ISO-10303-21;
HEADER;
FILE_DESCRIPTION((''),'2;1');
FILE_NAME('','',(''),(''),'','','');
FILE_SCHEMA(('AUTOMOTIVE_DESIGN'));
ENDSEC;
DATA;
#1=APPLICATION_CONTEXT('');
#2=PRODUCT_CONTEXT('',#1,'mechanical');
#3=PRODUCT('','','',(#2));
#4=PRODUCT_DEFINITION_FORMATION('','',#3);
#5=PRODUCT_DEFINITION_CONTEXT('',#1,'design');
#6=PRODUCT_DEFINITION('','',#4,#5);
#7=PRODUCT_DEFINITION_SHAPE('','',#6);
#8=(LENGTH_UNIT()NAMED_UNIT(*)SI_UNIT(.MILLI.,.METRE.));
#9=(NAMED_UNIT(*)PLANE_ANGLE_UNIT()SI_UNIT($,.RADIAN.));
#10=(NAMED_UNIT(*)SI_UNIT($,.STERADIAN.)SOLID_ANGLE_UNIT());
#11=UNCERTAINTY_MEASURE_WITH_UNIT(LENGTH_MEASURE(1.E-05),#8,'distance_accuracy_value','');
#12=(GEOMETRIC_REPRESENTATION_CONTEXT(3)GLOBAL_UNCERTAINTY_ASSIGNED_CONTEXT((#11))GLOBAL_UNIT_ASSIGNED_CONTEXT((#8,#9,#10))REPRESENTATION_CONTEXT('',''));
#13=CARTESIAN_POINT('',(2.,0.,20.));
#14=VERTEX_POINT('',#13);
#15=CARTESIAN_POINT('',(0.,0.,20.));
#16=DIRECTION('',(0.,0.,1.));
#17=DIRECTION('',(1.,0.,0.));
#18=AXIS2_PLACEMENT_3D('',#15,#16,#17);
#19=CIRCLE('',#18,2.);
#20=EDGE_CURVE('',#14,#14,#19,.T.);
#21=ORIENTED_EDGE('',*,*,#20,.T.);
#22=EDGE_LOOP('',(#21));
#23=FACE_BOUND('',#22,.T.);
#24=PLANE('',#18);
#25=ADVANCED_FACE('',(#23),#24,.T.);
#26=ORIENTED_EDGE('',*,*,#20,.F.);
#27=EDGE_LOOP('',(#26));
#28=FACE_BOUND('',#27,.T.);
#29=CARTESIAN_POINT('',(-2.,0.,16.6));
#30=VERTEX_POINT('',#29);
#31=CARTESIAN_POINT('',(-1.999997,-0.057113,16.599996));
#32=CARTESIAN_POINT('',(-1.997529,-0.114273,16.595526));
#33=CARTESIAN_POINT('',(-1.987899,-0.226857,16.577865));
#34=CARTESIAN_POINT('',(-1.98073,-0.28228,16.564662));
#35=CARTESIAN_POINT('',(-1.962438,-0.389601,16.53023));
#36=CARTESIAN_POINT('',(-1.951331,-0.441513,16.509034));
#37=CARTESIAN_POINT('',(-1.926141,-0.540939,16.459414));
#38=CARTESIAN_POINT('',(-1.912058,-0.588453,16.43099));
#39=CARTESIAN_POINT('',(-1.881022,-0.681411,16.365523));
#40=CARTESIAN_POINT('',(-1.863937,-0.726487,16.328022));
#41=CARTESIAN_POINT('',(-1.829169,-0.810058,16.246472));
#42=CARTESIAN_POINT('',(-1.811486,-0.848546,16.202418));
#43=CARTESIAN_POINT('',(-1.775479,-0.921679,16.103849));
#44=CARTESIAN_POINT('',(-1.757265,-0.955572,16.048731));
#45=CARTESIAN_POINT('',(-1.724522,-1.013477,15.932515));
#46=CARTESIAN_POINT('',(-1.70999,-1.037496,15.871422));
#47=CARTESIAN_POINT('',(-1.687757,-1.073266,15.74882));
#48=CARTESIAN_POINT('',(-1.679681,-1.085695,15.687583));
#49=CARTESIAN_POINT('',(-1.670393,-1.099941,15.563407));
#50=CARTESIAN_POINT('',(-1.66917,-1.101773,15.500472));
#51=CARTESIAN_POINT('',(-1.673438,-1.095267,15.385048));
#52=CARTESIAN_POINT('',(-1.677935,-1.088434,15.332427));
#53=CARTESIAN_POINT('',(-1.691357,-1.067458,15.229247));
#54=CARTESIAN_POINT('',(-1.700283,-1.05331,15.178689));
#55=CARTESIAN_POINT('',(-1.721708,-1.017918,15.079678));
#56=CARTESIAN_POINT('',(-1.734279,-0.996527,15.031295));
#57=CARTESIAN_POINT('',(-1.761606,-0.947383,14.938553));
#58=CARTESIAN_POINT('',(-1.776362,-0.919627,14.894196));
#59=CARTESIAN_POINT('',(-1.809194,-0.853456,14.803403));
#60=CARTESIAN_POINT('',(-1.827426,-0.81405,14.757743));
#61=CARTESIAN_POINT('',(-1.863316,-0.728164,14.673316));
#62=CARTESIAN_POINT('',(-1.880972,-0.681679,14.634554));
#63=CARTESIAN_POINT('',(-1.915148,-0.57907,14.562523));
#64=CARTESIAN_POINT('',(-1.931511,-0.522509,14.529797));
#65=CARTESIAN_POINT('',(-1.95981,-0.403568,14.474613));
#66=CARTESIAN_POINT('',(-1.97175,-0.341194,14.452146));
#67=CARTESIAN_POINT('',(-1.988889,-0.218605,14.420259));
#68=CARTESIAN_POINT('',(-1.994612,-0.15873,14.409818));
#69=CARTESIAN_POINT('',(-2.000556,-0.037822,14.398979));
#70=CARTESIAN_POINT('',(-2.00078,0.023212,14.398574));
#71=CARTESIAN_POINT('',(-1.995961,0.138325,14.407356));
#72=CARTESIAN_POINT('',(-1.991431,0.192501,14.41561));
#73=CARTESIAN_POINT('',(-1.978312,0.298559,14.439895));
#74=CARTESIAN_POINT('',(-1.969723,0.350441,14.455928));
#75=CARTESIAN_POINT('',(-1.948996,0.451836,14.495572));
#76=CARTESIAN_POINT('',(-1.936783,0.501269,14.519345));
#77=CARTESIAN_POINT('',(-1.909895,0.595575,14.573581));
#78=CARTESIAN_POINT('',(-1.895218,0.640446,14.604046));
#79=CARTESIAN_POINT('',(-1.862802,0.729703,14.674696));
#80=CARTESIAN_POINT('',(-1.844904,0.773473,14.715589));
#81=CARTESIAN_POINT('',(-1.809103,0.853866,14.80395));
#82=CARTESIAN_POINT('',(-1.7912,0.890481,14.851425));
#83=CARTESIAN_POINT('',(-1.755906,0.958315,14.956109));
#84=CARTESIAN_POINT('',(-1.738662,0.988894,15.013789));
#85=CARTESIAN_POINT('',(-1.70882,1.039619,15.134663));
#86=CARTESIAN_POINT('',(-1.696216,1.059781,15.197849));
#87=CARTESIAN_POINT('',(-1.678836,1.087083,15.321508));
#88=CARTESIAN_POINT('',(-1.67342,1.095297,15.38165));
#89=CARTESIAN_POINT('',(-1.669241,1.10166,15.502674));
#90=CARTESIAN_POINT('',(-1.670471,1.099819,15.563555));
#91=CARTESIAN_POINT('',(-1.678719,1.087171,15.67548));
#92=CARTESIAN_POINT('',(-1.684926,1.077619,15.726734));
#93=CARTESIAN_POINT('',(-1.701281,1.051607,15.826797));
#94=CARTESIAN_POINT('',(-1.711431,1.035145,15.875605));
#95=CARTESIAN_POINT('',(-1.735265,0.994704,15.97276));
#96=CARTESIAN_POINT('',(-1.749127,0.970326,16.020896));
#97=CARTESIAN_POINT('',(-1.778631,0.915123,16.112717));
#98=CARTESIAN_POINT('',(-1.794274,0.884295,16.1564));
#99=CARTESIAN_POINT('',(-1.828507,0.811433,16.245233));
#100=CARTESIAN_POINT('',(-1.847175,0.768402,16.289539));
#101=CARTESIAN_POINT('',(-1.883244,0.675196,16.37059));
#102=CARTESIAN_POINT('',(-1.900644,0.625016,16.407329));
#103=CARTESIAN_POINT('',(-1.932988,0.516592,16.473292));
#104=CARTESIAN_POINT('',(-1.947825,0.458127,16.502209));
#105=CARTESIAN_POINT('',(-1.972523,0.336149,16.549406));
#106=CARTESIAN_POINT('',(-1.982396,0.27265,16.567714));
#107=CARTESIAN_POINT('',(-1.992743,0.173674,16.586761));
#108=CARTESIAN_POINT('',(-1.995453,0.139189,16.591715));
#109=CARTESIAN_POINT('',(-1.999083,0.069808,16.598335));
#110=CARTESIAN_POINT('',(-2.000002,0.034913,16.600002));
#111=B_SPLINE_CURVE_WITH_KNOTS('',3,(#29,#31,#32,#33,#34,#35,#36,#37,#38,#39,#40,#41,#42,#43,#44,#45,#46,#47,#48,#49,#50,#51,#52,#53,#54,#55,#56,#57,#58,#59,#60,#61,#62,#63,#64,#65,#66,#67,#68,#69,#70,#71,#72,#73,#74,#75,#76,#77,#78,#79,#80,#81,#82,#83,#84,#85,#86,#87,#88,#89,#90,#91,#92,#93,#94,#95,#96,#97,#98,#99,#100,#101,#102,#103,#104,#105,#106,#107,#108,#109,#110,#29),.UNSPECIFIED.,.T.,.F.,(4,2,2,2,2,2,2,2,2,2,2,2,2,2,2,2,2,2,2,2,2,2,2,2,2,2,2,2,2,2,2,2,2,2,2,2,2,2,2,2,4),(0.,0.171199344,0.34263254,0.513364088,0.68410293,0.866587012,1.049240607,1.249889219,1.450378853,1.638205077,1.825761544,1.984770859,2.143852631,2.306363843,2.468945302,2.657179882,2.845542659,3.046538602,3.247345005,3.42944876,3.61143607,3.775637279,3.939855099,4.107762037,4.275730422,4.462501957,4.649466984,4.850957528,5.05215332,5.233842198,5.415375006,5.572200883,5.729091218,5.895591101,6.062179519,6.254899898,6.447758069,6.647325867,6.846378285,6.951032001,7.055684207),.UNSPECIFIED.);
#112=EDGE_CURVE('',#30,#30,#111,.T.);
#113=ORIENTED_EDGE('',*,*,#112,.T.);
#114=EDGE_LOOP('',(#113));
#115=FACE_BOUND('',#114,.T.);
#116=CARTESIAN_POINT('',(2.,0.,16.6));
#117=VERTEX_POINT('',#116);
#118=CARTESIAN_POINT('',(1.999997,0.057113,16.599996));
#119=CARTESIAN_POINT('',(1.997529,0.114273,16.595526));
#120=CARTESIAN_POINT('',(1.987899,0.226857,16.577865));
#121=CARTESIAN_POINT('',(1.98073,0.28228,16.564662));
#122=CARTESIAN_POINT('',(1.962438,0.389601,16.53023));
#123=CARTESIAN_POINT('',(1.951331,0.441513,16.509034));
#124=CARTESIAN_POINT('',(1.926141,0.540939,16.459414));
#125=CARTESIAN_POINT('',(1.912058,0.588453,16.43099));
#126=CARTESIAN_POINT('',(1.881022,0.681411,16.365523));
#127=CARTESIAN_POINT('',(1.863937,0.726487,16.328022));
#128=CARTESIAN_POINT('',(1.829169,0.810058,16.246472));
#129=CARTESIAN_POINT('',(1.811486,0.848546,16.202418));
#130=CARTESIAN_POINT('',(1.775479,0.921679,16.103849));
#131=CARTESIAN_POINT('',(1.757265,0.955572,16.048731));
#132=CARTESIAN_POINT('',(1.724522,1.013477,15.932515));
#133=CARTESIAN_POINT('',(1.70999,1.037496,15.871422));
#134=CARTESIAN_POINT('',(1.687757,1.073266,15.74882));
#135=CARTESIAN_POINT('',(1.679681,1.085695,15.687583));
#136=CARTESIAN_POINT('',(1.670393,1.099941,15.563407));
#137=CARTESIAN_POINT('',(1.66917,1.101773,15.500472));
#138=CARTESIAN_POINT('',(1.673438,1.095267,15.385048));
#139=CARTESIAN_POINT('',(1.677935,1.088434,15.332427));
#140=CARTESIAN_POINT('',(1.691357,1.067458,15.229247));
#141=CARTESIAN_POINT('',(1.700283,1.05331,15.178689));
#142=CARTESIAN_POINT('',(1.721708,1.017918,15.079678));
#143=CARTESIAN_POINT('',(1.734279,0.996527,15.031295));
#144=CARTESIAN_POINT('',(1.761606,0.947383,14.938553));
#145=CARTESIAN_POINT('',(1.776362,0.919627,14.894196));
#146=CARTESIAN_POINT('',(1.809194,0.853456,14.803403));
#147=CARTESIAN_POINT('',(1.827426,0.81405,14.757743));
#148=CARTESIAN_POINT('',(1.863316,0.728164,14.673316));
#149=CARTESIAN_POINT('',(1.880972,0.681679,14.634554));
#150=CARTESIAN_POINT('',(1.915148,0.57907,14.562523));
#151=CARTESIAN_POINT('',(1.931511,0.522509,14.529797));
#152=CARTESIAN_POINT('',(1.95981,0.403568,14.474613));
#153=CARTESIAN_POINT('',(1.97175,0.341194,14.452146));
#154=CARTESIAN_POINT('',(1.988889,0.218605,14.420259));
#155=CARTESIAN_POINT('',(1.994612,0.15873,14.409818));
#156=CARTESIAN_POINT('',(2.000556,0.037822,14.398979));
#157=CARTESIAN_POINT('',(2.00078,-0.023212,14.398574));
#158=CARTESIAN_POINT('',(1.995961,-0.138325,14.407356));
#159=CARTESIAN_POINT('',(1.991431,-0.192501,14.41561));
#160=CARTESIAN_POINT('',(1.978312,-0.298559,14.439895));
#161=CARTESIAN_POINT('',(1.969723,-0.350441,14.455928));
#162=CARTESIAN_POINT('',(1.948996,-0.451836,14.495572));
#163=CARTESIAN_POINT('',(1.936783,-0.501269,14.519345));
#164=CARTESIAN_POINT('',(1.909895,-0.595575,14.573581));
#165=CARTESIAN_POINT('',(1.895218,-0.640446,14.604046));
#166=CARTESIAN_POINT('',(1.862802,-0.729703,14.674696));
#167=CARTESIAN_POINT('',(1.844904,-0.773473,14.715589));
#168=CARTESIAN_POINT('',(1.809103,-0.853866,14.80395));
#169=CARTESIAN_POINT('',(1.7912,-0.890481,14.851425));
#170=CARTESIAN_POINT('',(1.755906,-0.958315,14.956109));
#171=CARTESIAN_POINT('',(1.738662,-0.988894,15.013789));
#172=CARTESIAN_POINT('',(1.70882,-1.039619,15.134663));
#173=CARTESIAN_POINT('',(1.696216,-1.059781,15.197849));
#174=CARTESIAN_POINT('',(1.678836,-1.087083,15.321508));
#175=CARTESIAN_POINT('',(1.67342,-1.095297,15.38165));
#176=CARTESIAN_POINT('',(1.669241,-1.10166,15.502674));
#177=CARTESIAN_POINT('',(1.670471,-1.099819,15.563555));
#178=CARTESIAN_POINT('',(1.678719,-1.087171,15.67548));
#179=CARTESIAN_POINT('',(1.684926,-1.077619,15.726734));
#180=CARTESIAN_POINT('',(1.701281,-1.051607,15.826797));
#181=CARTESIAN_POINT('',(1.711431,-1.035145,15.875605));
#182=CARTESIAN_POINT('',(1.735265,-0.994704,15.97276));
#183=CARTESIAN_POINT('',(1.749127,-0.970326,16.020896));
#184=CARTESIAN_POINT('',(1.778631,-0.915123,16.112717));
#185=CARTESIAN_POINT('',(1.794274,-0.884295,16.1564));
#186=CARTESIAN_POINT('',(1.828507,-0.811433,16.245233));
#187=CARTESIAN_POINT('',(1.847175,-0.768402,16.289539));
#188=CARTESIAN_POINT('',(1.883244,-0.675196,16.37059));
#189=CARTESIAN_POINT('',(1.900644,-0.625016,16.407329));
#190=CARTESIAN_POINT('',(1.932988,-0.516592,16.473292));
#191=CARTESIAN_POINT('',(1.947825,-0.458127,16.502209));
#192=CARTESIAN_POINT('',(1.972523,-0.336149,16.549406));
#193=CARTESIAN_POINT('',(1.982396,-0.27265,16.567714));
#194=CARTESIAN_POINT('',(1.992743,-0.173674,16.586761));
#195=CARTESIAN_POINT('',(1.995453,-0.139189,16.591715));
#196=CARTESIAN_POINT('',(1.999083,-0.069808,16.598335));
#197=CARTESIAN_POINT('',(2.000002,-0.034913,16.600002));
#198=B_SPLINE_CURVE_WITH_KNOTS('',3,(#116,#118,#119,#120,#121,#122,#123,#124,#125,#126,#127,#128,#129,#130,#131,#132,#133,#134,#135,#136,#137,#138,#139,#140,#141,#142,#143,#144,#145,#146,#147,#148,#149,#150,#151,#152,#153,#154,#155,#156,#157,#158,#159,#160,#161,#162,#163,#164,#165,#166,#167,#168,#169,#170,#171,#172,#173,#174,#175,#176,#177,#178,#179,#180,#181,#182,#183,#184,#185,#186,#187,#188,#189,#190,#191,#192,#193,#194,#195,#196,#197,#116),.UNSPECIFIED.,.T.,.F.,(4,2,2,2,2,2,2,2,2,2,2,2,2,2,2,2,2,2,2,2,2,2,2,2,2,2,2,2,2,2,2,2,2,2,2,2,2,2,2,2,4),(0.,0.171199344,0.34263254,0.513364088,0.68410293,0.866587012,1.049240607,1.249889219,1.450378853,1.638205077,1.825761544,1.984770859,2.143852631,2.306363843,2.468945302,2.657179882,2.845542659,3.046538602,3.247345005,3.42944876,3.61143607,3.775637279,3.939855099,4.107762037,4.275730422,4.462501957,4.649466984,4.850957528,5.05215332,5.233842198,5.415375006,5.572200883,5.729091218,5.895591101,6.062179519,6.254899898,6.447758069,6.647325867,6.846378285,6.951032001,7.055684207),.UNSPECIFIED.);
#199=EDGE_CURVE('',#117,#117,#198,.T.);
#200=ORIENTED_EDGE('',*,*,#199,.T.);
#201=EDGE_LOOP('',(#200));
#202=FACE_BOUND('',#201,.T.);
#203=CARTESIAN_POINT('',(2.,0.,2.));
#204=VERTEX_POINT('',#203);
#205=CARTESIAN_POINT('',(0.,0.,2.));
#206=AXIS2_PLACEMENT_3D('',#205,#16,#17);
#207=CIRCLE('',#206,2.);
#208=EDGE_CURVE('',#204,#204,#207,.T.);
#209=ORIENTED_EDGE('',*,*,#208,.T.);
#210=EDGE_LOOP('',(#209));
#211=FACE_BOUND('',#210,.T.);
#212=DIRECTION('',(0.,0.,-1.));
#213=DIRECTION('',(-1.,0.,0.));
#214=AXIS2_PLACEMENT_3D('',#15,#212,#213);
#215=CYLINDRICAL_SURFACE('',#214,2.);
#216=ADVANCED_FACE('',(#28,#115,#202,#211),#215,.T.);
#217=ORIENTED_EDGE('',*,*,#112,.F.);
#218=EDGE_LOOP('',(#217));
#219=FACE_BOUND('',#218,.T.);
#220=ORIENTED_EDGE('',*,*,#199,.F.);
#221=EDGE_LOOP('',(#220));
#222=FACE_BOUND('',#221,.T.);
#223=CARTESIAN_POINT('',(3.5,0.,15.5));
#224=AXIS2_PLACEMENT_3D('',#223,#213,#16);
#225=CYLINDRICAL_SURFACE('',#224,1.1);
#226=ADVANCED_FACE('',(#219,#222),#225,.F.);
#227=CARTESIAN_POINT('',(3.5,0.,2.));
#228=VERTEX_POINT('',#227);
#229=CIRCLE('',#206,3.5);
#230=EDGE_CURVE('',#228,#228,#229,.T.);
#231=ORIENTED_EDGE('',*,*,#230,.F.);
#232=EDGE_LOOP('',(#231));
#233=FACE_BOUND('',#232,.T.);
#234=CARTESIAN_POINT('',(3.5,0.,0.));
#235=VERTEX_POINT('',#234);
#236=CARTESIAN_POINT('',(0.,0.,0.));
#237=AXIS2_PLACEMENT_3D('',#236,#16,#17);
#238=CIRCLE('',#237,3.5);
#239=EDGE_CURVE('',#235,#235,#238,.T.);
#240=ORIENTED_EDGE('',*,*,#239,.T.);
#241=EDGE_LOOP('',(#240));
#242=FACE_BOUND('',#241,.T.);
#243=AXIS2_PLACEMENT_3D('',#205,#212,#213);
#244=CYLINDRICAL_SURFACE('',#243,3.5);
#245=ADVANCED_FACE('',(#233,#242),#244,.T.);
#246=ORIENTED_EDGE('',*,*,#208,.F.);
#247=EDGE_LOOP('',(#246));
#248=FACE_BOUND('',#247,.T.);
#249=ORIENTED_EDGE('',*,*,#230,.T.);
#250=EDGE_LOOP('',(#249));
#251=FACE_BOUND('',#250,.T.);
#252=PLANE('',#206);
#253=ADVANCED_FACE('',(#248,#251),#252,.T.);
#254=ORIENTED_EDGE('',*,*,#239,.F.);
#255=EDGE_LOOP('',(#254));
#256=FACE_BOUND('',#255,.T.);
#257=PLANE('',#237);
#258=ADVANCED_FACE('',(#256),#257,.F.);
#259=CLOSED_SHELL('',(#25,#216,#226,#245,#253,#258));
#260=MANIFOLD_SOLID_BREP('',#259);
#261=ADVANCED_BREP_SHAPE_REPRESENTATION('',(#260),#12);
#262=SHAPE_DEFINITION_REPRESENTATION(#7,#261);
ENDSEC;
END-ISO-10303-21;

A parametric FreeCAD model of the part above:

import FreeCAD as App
import Part
import Sketcher

V = App.Vector

doc = App.newDocument("Part")
body = doc.addObject("PartDesign::Body", "Body")

# Sketch on XY plane
sketch1 = doc.addObject("Sketcher::SketchObject", "Sketch")
body.addObject(sketch1)
sketch1.AttachmentSupport = (doc.XY_Plane, [""])
sketch1.MapMode = "FlatFace"
sketch1.addGeometry(Part.Circle(V(0, 0, 0), V(0, 0, 1), 3.5), False)
sketch1.addConstraint(Sketcher.Constraint("Coincident", 0, 3, -1, 1))
sketch1.addConstraint(Sketcher.Constraint("Diameter", 0, 7.0))
pad1 = doc.addObject("PartDesign::Pad", "Pad")
body.addObject(pad1)
pad1.Profile = sketch1
pad1.Length = 2

# Sketch on XY plane
sketch2 = doc.addObject("Sketcher::SketchObject", "Sketch001")
body.addObject(sketch2)
sketch2.AttachmentSupport = (doc.XY_Plane, [""])
sketch2.MapMode = "FlatFace"
sketch2.AttachmentOffset = App.Placement(V(0, 0, 2), App.Rotation())
sketch2.addGeometry(Part.Circle(V(0, 0, 0), V(0, 0, 1), 2), False)
sketch2.addConstraint(Sketcher.Constraint("Coincident", 0, 3, -1, 1))
sketch2.addConstraint(Sketcher.Constraint("Diameter", 0, 4.0))
pad2 = doc.addObject("PartDesign::Pad", "Pad001")
body.addObject(pad2)
pad2.Profile = sketch2
pad2.Length = 18

# Sketch on YZ plane
sketch3 = doc.addObject("Sketcher::SketchObject", "Sketch002")
body.addObject(sketch3)
sketch3.AttachmentSupport = (doc.YZ_Plane, [""])
sketch3.MapMode = "FlatFace"
sketch3.AttachmentOffset = App.Placement(V(0, 0, -2), App.Rotation())
sketch3.addGeometry(Part.Circle(V(0, 15.5, 0), V(0, 0, 1), 1.1), False)
sketch3.addConstraint(Sketcher.Constraint("PointOnObject", 0, 3, -2))
sketch3.addConstraint(Sketcher.Constraint("Diameter", 0, 2.2))
sketch3.addConstraint(Sketcher.Constraint("DistanceY", -1, 1, 0, 3, 15.5))
pocket1 = doc.addObject("PartDesign::Pocket", "Pocket")
body.addObject(pocket1)
pocket1.Profile = sketch3
pocket1.Type = "ThroughAll"
pocket1.Reversed = True

doc.recompute()
